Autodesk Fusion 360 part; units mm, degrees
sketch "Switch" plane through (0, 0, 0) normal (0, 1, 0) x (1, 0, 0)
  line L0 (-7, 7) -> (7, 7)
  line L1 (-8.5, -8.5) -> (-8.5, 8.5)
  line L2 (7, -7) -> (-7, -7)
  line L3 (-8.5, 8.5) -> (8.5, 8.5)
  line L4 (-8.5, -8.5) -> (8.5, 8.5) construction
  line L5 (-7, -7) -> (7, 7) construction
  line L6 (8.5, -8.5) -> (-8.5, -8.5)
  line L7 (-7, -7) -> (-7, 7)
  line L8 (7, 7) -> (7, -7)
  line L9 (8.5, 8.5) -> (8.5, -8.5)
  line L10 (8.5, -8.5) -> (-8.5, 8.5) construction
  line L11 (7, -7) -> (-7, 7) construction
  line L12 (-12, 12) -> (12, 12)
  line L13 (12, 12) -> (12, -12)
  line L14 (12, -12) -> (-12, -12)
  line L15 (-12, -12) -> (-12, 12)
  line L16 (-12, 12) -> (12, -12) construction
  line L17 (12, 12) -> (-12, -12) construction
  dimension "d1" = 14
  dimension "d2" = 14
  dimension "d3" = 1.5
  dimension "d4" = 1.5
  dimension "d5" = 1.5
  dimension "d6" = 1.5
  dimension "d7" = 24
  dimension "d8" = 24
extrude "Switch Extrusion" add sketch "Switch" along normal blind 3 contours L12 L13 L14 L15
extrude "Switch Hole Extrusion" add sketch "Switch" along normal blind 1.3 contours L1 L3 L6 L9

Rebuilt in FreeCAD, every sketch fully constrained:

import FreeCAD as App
import Part
import Sketcher
from FreeCAD import Vector

doc = App.newDocument("Part")
params = doc.addObject("Spreadsheet::Sheet", "Params")
for row, (alias, value) in enumerate([
    ("sketch1_width", "24 mm"),
    ("sketch1_width2", "17 mm"),
    ("pad1_length", "3 mm"),
    ("sketch2_width", "14 mm"),
    ("pad2_length", "1.3 mm"),
], start=1):
    params.set(f"A{row}", alias)
    params.set(f"B{row}", "=" + value)
    params.setAlias(f"B{row}", alias)

body = doc.addObject("PartDesign::Body", "Body")

# Sketch on XZ plane
sketch1 = body.newObject("Sketcher::SketchObject", "Sketch")
sketch1.AttachmentSupport = (doc.getObject("XZ_Plane"), [""])
sketch1.MapMode = "FlatFace"
sketch1.addGeometry([
    Part.LineSegment(Vector(12, -12, 0), Vector(-12, -12, 0)),  # 0
    Part.LineSegment(Vector(-12, -12, 0), Vector(-12, 12, 0)),  # 1
    Part.LineSegment(Vector(-12, 12, 0), Vector(12, 12, 0)),  # 2
    Part.LineSegment(Vector(12, 12, 0), Vector(12, -12, 0)),  # 3
    Part.LineSegment(Vector(8, 8, 0), Vector(-8, 8, 0)),  # 4
    Part.LineSegment(Vector(-8, 8, 0), Vector(-8, -8, 0)),  # 5
    Part.LineSegment(Vector(-8, -8, 0), Vector(8, -8, 0)),  # 6
    Part.LineSegment(Vector(8, -8, 0), Vector(8, 8, 0)),  # 7
], False)
sketch1.addConstraint([
    Sketcher.Constraint("Coincident", 0, 2, 1, 1),
    Sketcher.Constraint("Coincident", 1, 2, 2, 1),
    Sketcher.Constraint("Coincident", 2, 2, 3, 1),
    Sketcher.Constraint("Coincident", 3, 2, 0, 1),
    Sketcher.Constraint("Coincident", 4, 2, 5, 1),
    Sketcher.Constraint("Coincident", 5, 2, 6, 1),
    Sketcher.Constraint("Coincident", 6, 2, 7, 1),
    Sketcher.Constraint("Coincident", 7, 2, 4, 1),
    Sketcher.Constraint("Horizontal", 0),
    Sketcher.Constraint("Vertical", 1),
    Sketcher.Constraint("Horizontal", 2),
    Sketcher.Constraint("Vertical", 3),
    Sketcher.Constraint("Horizontal", 4),
    Sketcher.Constraint("Vertical", 5),
    Sketcher.Constraint("Horizontal", 6),
    Sketcher.Constraint("Vertical", 7),
    Sketcher.Constraint("Symmetric", 0, 2, 2, 2, -1, 1),
    Sketcher.Constraint("Symmetric", 4, 2, 6, 2, -1, 1),
    Sketcher.Constraint("Equal", 2, 1),
    Sketcher.Constraint("Equal", 6, 5),
    Sketcher.Constraint("DistanceX", 0, 2, 0, 1, 24.0),
    Sketcher.Constraint("DistanceX", 4, 2, 4, 1, 17.0),
])
sketch1.setExpression("Constraints[20]", "Params.sketch1_width")
sketch1.setExpression("Constraints[21]", "Params.sketch1_width2")
pad1 = body.newObject("PartDesign::Pad", "Pad")
pad1.Profile = sketch1
pad1.setExpression("Length", "Params.pad1_length")
pad1.Reversed = True

# Sketch on XZ plane
sketch2 = body.newObject("Sketcher::SketchObject", "Sketch001")
sketch2.AttachmentSupport = (doc.getObject("XZ_Plane"), [""])
sketch2.MapMode = "FlatFace"
sketch2.addGeometry([
    Part.LineSegment(Vector(-8, -8, 0), Vector(-8, 8, 0)),  # 0
    Part.LineSegment(Vector(-8, 8, 0), Vector(8, 8, 0)),  # 1
    Part.LineSegment(Vector(8, 8, 0), Vector(8, -8, 0)),  # 2
    Part.LineSegment(Vector(8, -8, 0), Vector(-8, -8, 0)),  # 3
    Part.LineSegment(Vector(-7, 7, 0), Vector(-7, -7, 0)),  # 4
    Part.LineSegment(Vector(-7, -7, 0), Vector(7, -7, 0)),  # 5
    Part.LineSegment(Vector(7, -7, 0), Vector(7, 7, 0)),  # 6
    Part.LineSegment(Vector(7, 7, 0), Vector(-7, 7, 0)),  # 7
], False)
sketch2.addConstraint([
    Sketcher.Constraint("Coincident", 0, 2, 1, 1),
    Sketcher.Constraint("Coincident", 1, 2, 2, 1),
    Sketcher.Constraint("Coincident", 2, 2, 3, 1),
    Sketcher.Constraint("Coincident", 3, 2, 0, 1),
    Sketcher.Constraint("Coincident", 4, 2, 5, 1),
    Sketcher.Constraint("Coincident", 5, 2, 6, 1),
    Sketcher.Constraint("Coincident", 6, 2, 7, 1),
    Sketcher.Constraint("Coincident", 7, 2, 4, 1),
    Sketcher.Constraint("Vertical", 0),
    Sketcher.Constraint("Horizontal", 1),
    Sketcher.Constraint("Vertical", 2),
    Sketcher.Constraint("Horizontal", 3),
    Sketcher.Constraint("Vertical", 4),
    Sketcher.Constraint("Horizontal", 5),
    Sketcher.Constraint("Vertical", 6),
    Sketcher.Constraint("Horizontal", 7),
    Sketcher.Constraint("Symmetric", 0, 2, 2, 2, -1, 1),
    Sketcher.Constraint("Symmetric", 4, 2, 6, 2, -1, 1),
    Sketcher.Constraint("Equal", 3, 0),
    Sketcher.Constraint("Equal", 7, 4),
    Sketcher.Constraint("DistanceX", 5, 1, 5, 2, 14.0),
    Sketcher.Constraint("DistanceX", 3, 2, 4, 2, 1.5),
])
sketch2.setExpression("Constraints[20]", "Params.sketch2_width")
pad2 = body.newObject("PartDesign::Pad", "Pad001")
pad2.Profile = sketch2
pad2.setExpression("Length", "Params.pad2_length")
pad2.Reversed = True

doc.recompute()
